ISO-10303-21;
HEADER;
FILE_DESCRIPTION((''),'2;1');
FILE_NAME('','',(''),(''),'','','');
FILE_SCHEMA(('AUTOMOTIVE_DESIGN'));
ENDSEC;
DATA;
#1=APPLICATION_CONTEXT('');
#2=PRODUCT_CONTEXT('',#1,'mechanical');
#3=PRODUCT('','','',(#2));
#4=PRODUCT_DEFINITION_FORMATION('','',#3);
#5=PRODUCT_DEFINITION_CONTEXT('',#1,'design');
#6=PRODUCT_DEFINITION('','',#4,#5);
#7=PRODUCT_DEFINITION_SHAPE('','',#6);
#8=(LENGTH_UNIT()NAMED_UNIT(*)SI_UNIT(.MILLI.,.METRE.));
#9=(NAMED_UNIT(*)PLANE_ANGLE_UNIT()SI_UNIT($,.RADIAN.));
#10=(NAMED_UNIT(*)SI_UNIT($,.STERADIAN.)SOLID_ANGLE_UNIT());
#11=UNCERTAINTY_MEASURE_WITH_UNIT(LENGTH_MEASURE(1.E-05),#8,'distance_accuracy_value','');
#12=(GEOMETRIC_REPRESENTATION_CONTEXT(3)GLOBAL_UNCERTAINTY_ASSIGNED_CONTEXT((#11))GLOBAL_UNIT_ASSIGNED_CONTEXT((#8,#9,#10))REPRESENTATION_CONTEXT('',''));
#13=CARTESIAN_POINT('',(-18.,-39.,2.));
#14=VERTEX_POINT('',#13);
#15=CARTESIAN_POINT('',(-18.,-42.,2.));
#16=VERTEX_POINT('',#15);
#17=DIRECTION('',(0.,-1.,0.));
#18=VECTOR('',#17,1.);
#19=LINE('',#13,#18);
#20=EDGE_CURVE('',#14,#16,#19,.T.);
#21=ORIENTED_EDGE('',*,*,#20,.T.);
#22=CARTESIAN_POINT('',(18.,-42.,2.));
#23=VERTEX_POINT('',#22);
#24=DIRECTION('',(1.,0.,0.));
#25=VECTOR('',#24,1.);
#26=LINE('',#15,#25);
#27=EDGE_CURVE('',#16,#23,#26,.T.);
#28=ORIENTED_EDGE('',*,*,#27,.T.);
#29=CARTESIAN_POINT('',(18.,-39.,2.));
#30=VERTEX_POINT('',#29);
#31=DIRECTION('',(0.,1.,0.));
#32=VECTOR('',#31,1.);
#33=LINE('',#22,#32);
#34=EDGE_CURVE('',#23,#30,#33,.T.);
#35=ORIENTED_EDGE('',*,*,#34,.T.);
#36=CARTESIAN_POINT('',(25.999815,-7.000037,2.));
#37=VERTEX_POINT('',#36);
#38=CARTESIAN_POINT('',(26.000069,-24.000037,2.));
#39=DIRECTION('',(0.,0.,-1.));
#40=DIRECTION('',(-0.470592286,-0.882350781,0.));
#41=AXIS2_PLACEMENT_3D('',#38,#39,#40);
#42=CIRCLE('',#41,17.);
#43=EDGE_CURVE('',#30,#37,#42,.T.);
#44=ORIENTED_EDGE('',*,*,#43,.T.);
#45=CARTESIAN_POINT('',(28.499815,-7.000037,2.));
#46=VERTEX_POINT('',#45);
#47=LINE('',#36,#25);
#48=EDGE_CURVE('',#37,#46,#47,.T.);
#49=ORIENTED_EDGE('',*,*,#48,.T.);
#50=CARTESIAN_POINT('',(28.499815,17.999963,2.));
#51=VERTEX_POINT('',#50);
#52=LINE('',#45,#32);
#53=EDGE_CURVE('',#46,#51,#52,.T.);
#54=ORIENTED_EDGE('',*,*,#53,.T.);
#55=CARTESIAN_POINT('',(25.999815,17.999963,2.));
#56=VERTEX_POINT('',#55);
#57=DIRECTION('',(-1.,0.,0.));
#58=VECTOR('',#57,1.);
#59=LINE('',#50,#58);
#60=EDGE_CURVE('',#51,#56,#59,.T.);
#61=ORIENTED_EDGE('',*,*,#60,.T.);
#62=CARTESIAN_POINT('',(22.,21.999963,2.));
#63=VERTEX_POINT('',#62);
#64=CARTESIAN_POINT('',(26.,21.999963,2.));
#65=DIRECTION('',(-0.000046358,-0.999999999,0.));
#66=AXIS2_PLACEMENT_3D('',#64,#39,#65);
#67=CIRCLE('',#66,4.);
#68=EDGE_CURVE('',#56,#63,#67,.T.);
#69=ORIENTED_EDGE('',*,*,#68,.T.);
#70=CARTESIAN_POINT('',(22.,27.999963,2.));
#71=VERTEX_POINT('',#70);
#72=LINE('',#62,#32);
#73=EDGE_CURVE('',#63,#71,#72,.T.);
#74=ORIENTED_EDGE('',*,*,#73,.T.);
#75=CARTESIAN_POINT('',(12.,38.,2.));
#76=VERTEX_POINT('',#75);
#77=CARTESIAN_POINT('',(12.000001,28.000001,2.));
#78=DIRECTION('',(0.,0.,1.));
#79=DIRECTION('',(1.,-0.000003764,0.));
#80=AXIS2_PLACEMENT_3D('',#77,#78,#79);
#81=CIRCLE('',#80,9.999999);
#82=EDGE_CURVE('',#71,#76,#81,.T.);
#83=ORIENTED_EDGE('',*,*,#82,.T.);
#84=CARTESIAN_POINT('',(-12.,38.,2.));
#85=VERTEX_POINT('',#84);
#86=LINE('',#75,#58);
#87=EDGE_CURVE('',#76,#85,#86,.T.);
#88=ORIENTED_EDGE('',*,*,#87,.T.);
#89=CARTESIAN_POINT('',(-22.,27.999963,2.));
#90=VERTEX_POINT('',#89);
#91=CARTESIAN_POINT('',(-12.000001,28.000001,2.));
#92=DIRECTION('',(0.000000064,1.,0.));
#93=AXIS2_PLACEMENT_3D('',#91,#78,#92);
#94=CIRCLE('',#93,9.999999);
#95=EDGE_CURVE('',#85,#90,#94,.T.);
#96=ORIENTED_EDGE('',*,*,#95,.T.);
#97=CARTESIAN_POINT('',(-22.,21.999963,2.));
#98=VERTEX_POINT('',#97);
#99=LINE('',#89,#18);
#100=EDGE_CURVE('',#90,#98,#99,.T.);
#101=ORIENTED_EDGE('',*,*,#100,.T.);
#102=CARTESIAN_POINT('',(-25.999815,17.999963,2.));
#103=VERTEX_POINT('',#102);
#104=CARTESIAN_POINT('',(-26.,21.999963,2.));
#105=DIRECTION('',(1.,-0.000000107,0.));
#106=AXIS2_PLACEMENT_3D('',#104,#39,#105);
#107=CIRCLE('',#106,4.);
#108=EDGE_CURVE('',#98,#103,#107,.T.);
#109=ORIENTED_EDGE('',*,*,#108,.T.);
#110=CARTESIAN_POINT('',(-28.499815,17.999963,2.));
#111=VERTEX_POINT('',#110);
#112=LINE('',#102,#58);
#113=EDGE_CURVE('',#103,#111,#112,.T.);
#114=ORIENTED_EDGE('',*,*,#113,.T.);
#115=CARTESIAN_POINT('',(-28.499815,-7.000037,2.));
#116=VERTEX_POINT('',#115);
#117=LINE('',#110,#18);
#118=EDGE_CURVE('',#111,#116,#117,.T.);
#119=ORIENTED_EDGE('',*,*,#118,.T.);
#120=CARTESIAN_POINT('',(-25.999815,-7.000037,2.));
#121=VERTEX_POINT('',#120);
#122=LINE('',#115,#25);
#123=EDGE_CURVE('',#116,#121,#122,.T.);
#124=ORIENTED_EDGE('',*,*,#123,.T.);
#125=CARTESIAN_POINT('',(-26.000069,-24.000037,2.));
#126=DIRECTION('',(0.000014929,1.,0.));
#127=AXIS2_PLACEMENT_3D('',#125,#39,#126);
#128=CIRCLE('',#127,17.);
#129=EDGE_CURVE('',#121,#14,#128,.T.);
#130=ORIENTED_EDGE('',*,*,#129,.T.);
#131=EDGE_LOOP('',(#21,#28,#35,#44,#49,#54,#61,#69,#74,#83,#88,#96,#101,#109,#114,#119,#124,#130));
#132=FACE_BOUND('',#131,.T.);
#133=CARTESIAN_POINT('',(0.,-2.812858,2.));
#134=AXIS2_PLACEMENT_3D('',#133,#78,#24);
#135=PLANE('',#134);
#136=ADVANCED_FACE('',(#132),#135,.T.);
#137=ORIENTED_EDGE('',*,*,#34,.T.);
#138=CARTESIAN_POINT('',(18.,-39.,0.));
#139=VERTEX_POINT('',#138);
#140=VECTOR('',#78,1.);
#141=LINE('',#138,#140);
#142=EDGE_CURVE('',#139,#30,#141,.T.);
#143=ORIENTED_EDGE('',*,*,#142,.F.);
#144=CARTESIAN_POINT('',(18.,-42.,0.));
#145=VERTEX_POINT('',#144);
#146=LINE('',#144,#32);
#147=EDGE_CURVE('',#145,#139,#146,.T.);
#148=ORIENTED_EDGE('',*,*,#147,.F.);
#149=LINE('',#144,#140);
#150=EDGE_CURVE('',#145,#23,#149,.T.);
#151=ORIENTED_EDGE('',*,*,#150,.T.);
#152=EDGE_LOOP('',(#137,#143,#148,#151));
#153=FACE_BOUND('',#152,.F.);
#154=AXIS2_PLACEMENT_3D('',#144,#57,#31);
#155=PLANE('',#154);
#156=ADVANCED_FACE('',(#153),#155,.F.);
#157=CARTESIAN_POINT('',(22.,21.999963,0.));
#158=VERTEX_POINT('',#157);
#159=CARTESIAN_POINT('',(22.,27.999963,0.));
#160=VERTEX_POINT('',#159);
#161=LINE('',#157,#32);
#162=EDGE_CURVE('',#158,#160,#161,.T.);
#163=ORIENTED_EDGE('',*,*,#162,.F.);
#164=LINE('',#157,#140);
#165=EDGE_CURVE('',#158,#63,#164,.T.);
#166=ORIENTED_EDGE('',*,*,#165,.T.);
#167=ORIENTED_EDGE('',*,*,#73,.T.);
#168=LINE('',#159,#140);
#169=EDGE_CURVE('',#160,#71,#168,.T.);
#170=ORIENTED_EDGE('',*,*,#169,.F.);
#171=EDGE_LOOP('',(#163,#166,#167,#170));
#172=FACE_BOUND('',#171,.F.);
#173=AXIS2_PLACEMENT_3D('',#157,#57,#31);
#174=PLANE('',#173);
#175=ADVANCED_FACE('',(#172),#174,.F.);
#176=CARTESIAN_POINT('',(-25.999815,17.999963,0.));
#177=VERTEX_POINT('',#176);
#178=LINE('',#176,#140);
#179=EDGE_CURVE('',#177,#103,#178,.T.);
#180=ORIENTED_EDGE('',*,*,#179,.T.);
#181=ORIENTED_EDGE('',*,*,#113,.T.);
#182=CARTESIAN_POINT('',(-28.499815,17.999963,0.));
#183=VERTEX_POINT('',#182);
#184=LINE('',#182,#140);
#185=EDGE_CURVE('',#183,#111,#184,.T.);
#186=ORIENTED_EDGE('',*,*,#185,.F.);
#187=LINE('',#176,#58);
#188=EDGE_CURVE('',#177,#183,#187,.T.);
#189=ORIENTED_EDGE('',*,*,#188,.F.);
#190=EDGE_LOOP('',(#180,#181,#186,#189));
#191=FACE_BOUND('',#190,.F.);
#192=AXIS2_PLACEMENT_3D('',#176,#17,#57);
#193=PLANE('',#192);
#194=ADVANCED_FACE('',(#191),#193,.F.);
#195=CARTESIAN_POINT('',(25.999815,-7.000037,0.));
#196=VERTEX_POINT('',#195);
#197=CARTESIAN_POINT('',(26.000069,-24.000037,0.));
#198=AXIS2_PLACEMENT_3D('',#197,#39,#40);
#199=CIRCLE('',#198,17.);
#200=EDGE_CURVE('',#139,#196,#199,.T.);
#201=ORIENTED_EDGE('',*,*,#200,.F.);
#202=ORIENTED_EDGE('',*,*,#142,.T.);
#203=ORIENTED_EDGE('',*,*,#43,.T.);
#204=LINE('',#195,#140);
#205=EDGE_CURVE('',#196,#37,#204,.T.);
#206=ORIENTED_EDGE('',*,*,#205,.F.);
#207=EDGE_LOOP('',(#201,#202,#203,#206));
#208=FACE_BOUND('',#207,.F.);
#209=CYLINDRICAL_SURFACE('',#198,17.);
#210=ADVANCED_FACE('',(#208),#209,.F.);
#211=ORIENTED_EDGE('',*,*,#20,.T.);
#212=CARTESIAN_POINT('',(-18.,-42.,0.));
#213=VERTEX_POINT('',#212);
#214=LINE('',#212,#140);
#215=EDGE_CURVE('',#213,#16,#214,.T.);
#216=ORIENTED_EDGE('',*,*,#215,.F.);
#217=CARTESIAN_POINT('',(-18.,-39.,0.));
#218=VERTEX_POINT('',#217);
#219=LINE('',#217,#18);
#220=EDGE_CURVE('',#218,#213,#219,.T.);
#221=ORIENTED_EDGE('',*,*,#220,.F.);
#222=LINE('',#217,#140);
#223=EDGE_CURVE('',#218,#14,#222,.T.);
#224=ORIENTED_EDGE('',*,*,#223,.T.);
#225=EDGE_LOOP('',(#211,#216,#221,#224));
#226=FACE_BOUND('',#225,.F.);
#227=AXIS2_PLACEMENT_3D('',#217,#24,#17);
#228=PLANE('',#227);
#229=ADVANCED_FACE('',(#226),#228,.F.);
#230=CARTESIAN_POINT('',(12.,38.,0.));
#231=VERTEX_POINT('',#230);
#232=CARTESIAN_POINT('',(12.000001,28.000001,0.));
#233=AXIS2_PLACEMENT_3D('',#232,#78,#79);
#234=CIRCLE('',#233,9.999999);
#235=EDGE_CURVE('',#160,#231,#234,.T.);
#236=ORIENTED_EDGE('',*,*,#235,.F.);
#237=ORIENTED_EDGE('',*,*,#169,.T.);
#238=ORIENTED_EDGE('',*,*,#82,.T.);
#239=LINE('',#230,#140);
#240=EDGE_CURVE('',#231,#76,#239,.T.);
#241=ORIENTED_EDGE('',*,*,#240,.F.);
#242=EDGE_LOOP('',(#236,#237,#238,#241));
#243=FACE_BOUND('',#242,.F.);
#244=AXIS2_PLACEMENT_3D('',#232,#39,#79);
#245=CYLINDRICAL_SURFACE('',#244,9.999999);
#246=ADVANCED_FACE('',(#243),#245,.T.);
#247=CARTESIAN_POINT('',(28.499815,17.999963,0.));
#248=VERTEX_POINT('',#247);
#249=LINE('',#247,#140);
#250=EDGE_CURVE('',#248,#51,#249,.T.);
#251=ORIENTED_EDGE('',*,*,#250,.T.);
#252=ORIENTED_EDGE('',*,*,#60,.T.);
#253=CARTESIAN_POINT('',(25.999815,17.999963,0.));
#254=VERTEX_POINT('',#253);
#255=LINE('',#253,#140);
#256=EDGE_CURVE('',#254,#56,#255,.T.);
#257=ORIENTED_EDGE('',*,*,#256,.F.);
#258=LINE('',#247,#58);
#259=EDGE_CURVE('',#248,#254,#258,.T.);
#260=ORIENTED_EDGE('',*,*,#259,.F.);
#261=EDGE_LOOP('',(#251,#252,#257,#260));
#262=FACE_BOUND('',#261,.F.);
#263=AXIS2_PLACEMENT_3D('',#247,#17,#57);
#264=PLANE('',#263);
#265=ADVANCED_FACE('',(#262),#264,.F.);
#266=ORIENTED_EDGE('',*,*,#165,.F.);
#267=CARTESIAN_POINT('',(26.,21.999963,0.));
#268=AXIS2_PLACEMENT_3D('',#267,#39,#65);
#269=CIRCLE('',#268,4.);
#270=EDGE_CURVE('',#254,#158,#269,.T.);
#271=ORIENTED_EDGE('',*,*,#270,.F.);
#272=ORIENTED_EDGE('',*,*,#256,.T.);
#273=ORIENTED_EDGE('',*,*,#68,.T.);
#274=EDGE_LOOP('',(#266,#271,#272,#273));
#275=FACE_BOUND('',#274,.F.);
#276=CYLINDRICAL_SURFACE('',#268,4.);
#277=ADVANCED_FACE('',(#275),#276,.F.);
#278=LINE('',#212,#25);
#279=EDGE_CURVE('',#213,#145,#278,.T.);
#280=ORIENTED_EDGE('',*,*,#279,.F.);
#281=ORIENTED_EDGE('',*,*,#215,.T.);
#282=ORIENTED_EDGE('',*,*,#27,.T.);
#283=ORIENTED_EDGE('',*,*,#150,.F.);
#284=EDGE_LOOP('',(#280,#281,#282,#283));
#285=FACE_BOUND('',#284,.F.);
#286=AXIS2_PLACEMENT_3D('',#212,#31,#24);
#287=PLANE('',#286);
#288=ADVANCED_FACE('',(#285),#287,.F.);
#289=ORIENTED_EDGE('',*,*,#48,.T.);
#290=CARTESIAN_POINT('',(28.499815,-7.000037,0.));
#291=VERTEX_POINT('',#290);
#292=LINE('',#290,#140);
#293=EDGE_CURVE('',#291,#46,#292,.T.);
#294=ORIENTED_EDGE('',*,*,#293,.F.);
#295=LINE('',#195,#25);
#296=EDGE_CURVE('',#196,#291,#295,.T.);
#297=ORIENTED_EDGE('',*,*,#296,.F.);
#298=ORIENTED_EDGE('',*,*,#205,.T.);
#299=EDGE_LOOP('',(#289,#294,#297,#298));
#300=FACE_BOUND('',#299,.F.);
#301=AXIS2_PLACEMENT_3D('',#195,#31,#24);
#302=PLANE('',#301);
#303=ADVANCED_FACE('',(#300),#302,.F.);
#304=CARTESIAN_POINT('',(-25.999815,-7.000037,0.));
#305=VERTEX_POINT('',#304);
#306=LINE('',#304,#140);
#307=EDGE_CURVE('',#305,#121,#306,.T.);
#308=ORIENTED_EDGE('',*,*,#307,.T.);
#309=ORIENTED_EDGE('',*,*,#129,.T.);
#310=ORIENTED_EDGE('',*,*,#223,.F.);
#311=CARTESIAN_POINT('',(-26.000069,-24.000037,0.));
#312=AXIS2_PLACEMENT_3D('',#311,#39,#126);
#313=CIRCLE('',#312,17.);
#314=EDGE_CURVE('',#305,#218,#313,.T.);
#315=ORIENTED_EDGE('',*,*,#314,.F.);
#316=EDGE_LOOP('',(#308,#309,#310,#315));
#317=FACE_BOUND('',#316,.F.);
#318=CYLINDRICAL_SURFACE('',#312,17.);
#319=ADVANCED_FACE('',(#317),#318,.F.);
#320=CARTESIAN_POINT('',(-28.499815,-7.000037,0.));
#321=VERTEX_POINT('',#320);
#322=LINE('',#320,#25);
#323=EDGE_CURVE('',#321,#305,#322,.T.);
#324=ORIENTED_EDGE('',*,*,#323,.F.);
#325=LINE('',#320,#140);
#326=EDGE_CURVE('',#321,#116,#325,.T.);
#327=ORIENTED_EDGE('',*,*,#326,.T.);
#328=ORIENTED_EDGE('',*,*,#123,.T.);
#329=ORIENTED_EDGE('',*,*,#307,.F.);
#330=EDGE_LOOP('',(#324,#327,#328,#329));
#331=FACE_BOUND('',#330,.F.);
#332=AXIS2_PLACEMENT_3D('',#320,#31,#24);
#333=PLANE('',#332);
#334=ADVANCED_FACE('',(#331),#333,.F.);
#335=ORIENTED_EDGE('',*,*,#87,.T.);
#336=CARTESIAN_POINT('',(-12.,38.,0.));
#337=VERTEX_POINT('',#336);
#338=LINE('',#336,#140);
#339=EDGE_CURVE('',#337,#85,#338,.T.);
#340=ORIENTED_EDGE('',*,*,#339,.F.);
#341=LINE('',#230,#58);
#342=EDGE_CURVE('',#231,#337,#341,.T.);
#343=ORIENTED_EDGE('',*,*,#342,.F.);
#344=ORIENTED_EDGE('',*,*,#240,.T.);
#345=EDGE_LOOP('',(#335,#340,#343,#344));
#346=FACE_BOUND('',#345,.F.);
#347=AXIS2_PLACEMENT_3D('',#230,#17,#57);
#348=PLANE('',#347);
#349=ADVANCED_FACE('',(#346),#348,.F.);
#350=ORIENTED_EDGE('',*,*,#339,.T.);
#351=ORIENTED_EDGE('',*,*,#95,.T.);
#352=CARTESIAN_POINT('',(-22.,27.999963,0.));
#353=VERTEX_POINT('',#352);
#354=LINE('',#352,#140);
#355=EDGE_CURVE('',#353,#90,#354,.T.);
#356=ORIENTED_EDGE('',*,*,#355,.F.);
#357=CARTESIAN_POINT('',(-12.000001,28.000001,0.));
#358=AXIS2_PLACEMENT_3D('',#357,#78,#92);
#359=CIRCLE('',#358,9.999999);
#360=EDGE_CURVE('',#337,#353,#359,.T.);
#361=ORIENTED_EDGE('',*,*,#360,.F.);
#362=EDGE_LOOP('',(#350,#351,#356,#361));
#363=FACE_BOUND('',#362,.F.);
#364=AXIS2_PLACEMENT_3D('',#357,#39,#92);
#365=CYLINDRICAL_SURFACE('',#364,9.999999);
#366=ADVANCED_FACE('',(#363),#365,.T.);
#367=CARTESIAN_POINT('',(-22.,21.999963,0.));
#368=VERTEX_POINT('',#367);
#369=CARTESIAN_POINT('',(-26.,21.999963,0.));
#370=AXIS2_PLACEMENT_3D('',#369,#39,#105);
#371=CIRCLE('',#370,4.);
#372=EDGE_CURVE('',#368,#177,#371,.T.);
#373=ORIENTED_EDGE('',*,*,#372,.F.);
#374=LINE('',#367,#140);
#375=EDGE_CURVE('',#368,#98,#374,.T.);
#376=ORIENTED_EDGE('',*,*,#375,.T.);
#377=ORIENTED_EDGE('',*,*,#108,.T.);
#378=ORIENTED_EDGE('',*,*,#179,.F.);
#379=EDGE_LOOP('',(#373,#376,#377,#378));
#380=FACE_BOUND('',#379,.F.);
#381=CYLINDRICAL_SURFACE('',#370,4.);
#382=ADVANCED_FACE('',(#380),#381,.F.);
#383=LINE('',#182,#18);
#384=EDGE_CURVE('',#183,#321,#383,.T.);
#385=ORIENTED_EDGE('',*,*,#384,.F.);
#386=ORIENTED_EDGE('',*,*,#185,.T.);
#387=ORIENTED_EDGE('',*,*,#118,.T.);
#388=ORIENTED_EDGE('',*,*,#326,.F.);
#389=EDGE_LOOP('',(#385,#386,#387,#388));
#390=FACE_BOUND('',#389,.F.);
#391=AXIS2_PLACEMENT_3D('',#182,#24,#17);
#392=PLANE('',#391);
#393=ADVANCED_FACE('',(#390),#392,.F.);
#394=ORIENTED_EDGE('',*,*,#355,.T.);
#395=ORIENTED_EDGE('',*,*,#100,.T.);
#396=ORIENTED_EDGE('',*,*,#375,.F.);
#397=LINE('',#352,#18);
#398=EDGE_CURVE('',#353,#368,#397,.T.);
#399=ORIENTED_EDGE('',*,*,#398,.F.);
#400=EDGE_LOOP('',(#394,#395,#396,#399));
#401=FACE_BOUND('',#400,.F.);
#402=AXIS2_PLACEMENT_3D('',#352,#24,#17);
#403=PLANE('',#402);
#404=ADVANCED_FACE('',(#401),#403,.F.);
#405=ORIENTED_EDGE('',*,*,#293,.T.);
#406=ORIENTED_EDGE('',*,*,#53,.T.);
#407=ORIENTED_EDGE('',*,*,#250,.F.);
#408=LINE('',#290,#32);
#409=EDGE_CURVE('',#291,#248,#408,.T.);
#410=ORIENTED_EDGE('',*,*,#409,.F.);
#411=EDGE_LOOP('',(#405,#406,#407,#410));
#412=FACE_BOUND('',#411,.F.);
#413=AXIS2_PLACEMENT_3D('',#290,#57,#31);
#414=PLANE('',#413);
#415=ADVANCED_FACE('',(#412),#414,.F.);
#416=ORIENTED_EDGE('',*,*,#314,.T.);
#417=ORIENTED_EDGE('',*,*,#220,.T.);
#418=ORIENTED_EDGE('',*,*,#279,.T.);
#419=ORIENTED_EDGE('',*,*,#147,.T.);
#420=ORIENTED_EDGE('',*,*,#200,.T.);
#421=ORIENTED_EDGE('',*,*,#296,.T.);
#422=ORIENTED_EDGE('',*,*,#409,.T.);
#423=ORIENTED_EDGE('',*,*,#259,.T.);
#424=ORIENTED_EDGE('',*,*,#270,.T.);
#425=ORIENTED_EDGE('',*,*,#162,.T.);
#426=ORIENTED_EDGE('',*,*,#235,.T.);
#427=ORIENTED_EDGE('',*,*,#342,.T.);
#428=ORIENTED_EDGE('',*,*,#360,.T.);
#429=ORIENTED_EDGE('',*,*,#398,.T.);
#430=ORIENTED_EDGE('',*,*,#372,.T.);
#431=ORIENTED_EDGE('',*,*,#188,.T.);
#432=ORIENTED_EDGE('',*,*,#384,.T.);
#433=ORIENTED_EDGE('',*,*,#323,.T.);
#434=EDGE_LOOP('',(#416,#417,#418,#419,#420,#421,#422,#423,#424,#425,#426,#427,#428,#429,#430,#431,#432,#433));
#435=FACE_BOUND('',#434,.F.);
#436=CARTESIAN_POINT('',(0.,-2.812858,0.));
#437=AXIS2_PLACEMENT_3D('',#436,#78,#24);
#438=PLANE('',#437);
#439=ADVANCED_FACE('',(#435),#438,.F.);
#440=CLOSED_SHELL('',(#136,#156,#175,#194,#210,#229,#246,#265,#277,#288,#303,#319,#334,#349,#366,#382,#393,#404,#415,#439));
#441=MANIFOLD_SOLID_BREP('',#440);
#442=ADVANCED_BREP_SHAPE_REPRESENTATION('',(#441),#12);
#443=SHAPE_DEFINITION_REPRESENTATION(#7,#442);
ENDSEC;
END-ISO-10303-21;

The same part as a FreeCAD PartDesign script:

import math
import FreeCAD as App
import Part
import Sketcher
from FreeCAD import Vector

doc = App.newDocument("Part")
params = doc.addObject("Spreadsheet::Sheet", "Params")
for row, (alias, value) in enumerate([
    ("sketch1_radius", "9.999999 mm"),
    ("sketch1_radius2", "4 mm"),
    ("sketch1_radius3", "17 mm"),
    ("sketch1_width", "24 mm"),
    ("sketch1_width2", "36 mm"),
    ("pad1_length", "2 mm"),
], start=1):
    params.set(f"A{row}", alias)
    params.set(f"B{row}", "=" + value)
    params.setAlias(f"B{row}", alias)

body = doc.addObject("PartDesign::Body", "Body")

sketch1 = doc.addObject("Sketcher::SketchObject", "Sketch")
body.addObject(sketch1)
sketch1.AttachmentSupport = (doc.XY_Plane, [""])
sketch1.MapMode = "FlatFace"
sketch1.addGeometry([
    Part.LineSegment(Vector(12, 38, 0), Vector(-12, 38, 0)),
    Part.ArcOfCircle(Part.Circle(Vector(-12, 28, 0), Vector(0, 0, 1), 10), math.radians(90), math.radians(180)),
    Part.LineSegment(Vector(-22, 28, 0), Vector(-22, 22, 0)),
    Part.ArcOfCircle(Part.Circle(Vector(-26, 22, 0), Vector(0, 0, 1), 4), math.radians(-90), math.radians(0)),
    Part.LineSegment(Vector(-26, 18, 0), Vector(-28.5, 18, 0)),
    Part.LineSegment(Vector(-28.5, 18, 0), Vector(-28.5, -7, 0)),
    Part.LineSegment(Vector(-28.5, -7, 0), Vector(-26, -7, 0)),
    Part.ArcOfCircle(Part.Circle(Vector(-26, -24, 0), Vector(0, 0, 1), 17), math.radians(-62), math.radians(90)),
    Part.LineSegment(Vector(-18, -39, 0), Vector(-18, -42, 0)),
    Part.LineSegment(Vector(-18, -42, 0), Vector(18, -42, 0)),
    Part.LineSegment(Vector(18, -42, 0), Vector(18, -39, 0)),
    Part.ArcOfCircle(Part.Circle(Vector(26, -24, 0), Vector(0, 0, 1), 17), math.radians(90), math.radians(242)),
    Part.LineSegment(Vector(26, -7, 0), Vector(28.5, -7, 0)),
    Part.LineSegment(Vector(28.5, -7, 0), Vector(28.5, 18, 0)),
    Part.LineSegment(Vector(28.5, 18, 0), Vector(26, 18, 0)),
    Part.ArcOfCircle(Part.Circle(Vector(26, 22, 0), Vector(0, 0, 1), 4), math.radians(-180), math.radians(-90)),
    Part.LineSegment(Vector(22, 22, 0), Vector(22, 28, 0)),
    Part.ArcOfCircle(Part.Circle(Vector(12, 28, 0), Vector(0, 0, 1), 10), math.radians(0), math.radians(90)),
], False)
sketch1.addConstraint([
    Sketcher.Constraint("Tangent", 0, 2, 1, 1),
    Sketcher.Constraint("Coincident", 1, 2, 2, 1),
    Sketcher.Constraint("Tangent", 2, 2, 3, 2),
    Sketcher.Constraint("Coincident", 3, 1, 4, 1),
    Sketcher.Constraint("Coincident", 4, 2, 5, 1),
    Sketcher.Constraint("Coincident", 5, 2, 6, 1),
    Sketcher.Constraint("Coincident", 6, 2, 7, 2),
    Sketcher.Constraint("Coincident", 7, 1, 8, 1),
    Sketcher.Constraint("Coincident", 8, 2, 9, 1),
    Sketcher.Constraint("Coincident", 9, 2, 10, 1),
    Sketcher.Constraint("Coincident", 10, 2, 11, 2),
    Sketcher.Constraint("Coincident", 11, 1, 12, 1),
    Sketcher.Constraint("Coincident", 12, 2, 13, 1),
    Sketcher.Constraint("Coincident", 13, 2, 14, 1),
    Sketcher.Constraint("Coincident", 14, 2, 15, 2),
    Sketcher.Constraint("Tangent", 15, 1, 16, 1),
    Sketcher.Constraint("Coincident", 16, 2, 17, 1),
    Sketcher.Constraint("Tangent", 17, 2, 0, 1),
    Sketcher.Constraint("Horizontal", 0),
    Sketcher.Constraint("Vertical", 2),
    Sketcher.Constraint("Horizontal", 4),
    Sketcher.Constraint("Vertical", 5),
    Sketcher.Constraint("Horizontal", 6),
    Sketcher.Constraint("Vertical", 8),
    Sketcher.Constraint("Horizontal", 9),
    Sketcher.Constraint("Vertical", 10),
    Sketcher.Constraint("Horizontal", 12),
    Sketcher.Constraint("Vertical", 13),
    Sketcher.Constraint("Horizontal", 14),
    Sketcher.Constraint("Vertical", 16),
    Sketcher.Constraint("Equal", 7, 11),
    Sketcher.Constraint("Equal", 3, 15),
    Sketcher.Constraint("Equal", 1, 17),
    Sketcher.Constraint("Symmetric", 7, 3, 11, 3, -2),
    Sketcher.Constraint("Symmetric", 3, 3, 15, 3, -2),
    Sketcher.Constraint("Horizontal", 7, 1, 10, 2),
    Sketcher.Constraint("Horizontal", 1, 2, 16, 2),
    Sketcher.Constraint("Vertical", 3, 1, 6, 2),
    Sketcher.Constraint("Vertical", 11, 1, 14, 2),
    Sketcher.Constraint("Equal", 6, 12),
    Sketcher.Constraint("Radius", 1, 9.999999),
    Sketcher.Constraint("Radius", 3, 4.0),
    Sketcher.Constraint("Radius", 7, 17.0),
    Sketcher.Constraint("DistanceX", 0, 2, 0, 1, 24.0),
    Sketcher.Constraint("DistanceX", 9, 1, 9, 2, 36.0),
    Sketcher.Constraint("DistanceY", 2, 2, 2, 1, 6.0),
    Sketcher.Constraint("DistanceY", 5, 2, 5, 1, 25.0),
    Sketcher.Constraint("DistanceY", 8, 2, 8, 1, 3.0),
    Sketcher.Constraint("DistanceX", 4, 2, 4, 1, 2.5),
    Sketcher.Constraint("DistanceY", -1, 1, 1, 3, 28.000001),
    Sketcher.Constraint("DistanceY", 7, 1, -1, 1, 39.0),
    Sketcher.Constraint("DistanceX", 7, 3, -1, 1, 26.000069),
    Sketcher.Constraint("DistanceX", 3, 1, -1, 1, 25.999815),
    Sketcher.Constraint("DistanceX", -1, 1, 11, 1, 25.999815),
])
sketch1.setExpression("Constraints[40]", "Params.sketch1_radius")
sketch1.setExpression("Constraints[41]", "Params.sketch1_radius2")
sketch1.setExpression("Constraints[42]", "Params.sketch1_radius3")
sketch1.setExpression("Constraints[43]", "Params.sketch1_width")
sketch1.setExpression("Constraints[44]", "Params.sketch1_width2")
pad1 = doc.addObject("PartDesign::Pad", "Pad")
body.addObject(pad1)
pad1.Profile = sketch1
pad1.setExpression("Length", "Params.pad1_length")

doc.recompute()
